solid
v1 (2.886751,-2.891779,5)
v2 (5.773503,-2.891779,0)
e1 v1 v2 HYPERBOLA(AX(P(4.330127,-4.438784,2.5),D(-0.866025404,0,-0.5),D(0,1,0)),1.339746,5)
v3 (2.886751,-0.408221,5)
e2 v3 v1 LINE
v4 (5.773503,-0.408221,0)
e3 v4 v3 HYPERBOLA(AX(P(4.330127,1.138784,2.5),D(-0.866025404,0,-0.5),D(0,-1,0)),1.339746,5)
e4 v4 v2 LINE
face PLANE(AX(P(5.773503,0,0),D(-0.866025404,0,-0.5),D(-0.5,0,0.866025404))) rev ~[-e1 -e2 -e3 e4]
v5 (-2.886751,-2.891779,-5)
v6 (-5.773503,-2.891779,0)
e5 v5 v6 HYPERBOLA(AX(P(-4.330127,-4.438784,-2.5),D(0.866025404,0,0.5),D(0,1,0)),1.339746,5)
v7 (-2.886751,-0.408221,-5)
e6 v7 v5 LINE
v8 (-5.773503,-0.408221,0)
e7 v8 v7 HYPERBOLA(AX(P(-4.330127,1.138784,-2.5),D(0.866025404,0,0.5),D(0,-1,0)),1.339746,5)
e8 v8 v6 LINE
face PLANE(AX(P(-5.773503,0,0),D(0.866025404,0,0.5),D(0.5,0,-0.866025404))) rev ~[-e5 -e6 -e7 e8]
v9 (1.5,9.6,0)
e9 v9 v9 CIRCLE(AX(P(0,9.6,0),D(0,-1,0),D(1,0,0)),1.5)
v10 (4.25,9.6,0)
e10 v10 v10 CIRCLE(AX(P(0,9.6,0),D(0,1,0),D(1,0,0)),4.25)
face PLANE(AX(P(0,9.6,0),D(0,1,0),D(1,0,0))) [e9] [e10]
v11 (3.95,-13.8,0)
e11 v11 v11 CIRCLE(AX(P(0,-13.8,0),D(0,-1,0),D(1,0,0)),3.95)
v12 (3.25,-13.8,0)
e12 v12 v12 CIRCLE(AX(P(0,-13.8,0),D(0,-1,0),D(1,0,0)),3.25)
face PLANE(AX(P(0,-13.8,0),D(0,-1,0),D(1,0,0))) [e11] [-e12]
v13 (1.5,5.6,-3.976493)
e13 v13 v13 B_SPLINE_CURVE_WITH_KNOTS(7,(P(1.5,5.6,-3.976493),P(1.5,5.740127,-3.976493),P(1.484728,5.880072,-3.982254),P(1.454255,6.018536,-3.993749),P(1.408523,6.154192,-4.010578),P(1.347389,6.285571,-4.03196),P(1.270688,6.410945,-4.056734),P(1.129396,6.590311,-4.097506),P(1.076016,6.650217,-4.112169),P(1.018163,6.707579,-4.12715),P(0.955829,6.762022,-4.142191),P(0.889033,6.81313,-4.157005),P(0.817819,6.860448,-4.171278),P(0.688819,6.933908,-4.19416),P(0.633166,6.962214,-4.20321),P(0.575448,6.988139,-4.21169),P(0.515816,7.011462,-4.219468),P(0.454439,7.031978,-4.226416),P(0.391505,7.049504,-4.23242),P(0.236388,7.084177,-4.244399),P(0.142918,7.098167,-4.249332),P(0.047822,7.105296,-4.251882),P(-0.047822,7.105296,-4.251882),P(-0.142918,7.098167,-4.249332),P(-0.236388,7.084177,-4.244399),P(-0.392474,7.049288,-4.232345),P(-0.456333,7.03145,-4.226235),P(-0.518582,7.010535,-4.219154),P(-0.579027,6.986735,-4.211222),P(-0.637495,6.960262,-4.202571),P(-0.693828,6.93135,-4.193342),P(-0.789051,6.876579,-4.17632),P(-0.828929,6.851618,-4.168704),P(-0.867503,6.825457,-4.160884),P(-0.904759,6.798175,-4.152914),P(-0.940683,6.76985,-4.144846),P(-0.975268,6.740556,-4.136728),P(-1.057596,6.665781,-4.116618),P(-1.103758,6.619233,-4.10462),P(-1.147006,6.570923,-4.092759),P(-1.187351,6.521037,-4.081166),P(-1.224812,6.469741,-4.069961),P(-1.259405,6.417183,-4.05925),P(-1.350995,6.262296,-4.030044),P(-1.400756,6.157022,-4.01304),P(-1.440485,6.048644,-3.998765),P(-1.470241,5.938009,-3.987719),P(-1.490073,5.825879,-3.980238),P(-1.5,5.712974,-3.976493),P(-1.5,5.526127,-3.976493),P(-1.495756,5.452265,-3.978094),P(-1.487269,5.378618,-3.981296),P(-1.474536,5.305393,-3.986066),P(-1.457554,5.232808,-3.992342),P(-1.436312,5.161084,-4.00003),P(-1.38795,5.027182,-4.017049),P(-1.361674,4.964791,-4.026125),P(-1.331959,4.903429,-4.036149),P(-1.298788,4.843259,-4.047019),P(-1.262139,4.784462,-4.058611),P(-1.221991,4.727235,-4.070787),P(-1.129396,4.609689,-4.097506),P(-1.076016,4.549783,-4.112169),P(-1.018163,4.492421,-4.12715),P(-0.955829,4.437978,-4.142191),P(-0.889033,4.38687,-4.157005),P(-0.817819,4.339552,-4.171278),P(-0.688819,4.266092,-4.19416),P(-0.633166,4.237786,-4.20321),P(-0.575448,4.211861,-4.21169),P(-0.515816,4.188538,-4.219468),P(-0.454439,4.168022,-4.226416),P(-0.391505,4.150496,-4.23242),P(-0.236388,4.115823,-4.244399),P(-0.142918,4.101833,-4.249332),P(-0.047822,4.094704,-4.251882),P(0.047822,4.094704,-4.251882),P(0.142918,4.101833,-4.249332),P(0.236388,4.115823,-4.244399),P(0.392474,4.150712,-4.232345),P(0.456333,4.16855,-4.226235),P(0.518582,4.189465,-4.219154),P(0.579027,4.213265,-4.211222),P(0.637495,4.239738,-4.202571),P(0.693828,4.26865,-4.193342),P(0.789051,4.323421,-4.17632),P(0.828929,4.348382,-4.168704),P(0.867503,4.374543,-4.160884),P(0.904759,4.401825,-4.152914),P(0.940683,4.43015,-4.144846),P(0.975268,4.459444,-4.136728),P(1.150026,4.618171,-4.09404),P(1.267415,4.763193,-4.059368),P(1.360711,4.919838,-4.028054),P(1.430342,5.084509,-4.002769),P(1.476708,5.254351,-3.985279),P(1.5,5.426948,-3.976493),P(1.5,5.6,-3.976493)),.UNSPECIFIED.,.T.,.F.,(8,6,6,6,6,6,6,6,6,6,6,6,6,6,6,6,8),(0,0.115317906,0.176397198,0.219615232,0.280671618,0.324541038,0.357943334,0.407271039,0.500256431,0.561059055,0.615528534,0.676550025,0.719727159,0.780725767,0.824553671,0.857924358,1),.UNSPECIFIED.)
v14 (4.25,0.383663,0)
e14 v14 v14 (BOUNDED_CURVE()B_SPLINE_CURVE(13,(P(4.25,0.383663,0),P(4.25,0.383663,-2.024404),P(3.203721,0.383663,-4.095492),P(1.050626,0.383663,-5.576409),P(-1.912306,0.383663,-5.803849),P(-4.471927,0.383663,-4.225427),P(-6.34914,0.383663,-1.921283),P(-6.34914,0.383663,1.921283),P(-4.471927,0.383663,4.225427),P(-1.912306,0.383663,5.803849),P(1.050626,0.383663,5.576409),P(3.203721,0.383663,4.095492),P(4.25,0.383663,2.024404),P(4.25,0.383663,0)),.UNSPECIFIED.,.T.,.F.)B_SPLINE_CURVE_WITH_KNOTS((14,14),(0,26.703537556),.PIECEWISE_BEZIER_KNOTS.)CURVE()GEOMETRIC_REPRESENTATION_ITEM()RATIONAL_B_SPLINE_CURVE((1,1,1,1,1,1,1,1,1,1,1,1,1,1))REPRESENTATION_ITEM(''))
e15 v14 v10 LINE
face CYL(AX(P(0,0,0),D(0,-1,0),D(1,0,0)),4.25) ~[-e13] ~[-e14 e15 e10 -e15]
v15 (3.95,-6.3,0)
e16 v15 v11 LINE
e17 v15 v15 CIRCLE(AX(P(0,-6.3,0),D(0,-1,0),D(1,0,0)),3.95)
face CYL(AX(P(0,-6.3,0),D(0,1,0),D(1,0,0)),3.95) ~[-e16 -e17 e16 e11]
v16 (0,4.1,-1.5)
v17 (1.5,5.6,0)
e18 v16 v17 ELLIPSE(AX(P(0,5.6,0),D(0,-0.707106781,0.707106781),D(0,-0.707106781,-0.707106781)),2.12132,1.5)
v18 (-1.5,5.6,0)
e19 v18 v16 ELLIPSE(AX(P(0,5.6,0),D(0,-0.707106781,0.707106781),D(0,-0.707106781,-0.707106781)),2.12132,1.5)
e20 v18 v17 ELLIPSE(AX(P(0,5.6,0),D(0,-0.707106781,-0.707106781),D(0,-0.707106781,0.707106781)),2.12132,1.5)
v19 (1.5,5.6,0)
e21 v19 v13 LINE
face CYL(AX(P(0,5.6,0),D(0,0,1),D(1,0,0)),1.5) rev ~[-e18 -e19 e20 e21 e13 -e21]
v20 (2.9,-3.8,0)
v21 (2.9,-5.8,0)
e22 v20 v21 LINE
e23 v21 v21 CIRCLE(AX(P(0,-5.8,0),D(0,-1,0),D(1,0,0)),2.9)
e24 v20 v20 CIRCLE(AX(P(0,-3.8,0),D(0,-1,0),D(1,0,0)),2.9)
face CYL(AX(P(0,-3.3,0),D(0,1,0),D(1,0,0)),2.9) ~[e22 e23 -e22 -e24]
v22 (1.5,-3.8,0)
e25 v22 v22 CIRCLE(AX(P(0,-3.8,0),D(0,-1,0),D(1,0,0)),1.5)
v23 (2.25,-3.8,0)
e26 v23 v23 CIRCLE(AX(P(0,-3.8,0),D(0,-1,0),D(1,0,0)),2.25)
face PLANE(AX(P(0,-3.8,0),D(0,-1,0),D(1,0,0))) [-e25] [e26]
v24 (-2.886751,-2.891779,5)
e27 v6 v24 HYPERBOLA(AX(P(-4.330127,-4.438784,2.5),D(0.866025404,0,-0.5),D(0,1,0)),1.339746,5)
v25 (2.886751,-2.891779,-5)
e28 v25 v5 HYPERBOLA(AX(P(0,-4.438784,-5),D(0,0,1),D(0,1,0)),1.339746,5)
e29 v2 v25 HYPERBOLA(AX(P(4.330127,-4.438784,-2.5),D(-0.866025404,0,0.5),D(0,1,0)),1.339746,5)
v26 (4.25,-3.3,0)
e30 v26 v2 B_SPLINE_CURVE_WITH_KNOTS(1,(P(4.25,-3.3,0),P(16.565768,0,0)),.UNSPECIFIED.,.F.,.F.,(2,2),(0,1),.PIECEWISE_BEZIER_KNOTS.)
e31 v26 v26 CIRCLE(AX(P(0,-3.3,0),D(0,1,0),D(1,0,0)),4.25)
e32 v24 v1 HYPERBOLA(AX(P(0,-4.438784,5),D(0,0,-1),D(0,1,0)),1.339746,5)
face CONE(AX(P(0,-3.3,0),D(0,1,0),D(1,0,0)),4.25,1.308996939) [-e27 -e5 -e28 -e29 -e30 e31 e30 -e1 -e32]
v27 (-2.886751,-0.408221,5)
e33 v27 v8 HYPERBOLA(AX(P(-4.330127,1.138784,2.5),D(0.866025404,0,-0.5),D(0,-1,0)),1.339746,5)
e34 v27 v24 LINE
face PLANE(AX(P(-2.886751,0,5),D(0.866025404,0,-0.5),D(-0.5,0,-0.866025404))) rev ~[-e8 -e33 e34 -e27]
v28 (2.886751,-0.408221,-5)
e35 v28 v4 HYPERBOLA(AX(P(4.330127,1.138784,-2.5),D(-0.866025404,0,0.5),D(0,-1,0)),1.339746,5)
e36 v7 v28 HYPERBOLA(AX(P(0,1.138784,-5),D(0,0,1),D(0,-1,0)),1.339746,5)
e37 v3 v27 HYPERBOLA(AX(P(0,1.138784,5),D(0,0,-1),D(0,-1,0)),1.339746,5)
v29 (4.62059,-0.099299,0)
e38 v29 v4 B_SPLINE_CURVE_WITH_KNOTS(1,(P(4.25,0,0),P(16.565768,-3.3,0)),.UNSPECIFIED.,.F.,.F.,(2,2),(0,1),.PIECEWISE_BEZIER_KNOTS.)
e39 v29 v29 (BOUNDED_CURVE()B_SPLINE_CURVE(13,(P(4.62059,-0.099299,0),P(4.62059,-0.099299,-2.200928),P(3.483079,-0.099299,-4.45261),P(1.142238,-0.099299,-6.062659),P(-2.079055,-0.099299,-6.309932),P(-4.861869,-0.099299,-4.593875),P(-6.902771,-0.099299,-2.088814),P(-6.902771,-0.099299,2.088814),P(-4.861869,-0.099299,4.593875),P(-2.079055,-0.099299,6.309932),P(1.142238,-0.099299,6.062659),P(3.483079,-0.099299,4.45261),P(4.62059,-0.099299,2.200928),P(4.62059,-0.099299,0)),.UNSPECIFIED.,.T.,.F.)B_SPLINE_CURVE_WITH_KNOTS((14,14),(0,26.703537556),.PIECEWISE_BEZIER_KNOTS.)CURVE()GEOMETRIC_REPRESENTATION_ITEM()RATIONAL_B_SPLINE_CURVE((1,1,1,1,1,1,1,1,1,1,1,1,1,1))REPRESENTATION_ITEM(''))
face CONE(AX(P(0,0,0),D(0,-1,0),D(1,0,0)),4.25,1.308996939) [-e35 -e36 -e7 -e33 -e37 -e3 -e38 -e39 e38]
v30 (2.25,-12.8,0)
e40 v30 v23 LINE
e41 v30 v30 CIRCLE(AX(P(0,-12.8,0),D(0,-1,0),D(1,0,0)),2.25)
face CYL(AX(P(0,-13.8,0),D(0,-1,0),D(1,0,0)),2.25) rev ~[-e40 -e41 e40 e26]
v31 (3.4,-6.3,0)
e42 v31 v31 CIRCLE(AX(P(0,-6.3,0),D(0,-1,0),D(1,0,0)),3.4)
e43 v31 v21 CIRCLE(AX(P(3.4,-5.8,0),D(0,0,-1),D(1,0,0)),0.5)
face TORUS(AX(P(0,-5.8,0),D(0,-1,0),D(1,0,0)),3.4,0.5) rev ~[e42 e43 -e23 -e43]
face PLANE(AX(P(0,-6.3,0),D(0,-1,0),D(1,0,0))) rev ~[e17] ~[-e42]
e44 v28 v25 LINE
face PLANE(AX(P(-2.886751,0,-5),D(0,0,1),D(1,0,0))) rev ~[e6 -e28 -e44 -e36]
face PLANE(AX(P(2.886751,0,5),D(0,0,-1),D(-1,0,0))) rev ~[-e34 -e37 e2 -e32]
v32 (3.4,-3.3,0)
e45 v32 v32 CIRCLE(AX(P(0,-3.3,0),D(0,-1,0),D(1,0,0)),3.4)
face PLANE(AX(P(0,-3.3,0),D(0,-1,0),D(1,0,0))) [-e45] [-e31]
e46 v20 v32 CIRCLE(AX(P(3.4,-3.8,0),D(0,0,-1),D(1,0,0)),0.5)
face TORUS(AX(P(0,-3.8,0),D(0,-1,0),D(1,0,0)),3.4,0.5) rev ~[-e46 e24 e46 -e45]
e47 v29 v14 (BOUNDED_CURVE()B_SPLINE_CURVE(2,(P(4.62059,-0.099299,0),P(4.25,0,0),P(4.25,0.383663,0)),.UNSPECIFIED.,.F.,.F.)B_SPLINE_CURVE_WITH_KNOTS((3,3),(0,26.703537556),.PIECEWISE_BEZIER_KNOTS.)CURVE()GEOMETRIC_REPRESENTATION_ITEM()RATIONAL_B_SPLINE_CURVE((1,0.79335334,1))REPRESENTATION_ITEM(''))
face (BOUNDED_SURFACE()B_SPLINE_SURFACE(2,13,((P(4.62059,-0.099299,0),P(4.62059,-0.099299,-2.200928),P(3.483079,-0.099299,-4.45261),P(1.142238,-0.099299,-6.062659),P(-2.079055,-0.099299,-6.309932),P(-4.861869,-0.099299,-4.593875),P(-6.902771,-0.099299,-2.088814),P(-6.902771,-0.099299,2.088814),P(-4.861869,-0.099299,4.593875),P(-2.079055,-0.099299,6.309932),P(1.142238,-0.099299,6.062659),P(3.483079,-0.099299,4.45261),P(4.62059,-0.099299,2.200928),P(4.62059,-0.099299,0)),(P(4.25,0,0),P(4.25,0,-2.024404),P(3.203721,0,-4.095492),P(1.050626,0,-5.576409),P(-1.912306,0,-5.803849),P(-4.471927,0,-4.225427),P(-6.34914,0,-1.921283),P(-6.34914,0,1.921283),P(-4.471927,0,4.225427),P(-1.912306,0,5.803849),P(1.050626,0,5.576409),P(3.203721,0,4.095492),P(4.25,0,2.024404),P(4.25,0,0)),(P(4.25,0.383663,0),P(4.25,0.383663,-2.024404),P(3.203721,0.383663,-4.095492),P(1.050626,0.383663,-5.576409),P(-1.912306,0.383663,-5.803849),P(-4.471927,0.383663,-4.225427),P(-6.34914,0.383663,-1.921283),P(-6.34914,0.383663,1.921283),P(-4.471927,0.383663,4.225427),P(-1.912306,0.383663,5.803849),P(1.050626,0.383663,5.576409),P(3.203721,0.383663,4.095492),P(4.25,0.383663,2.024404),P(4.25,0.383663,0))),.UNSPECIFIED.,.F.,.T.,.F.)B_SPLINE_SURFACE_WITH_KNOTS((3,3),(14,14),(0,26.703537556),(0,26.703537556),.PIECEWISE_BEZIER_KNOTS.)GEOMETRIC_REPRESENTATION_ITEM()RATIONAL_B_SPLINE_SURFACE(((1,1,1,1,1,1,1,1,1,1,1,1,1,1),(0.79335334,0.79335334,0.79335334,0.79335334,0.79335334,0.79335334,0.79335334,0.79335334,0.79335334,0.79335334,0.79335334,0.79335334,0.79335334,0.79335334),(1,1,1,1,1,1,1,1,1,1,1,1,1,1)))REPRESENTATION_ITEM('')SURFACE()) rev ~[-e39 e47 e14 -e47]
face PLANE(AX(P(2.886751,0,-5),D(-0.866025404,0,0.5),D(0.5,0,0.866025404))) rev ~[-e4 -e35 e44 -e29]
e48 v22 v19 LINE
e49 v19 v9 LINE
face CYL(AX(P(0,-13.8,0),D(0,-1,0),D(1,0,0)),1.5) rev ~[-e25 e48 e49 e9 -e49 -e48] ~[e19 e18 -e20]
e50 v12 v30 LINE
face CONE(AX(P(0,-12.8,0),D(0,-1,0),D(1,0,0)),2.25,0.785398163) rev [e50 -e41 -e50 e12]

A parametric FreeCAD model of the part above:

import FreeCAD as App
import Part
import Sketcher

V = App.Vector
Q = App.Units.Quantity


def edges_at(feature, points):
    """Names of the edges that pass closest to the given points."""
    edges = feature.Shape.Edges
    near = lambda p: min(range(len(edges)), key=lambda i: edges[i].distToShape(Part.Vertex(*p))[0])
    return sorted({f"Edge{near(p) + 1}" for p in points})


def add_polygon(sketch, points):
    """Adds a closed chain of lines whose ends are joined by coincident constraints."""
    first, n = sketch.GeometryCount, len(points)
    for a, b in zip(points, points[1:] + points[:1]):
        sketch.addGeometry(Part.LineSegment(App.Vector(*a, 0), App.Vector(*b, 0)), False)
    for i in range(n):
        sketch.addConstraint(Sketcher.Constraint("Coincident", first + i, 2, first + (i + 1) % n, 1))

doc = App.newDocument("Part")
body = doc.addObject("PartDesign::Body", "Body")

# Sketch on XZ plane
sketch1 = body.newObject("Sketcher::SketchObject", "Sketch")
sketch1.AttachmentSupport = (doc.getObject("XZ_Plane"), [""])
sketch1.MapMode = "FlatFace"
sketch1.addGeometry(Part.Circle(V(0, 0, 0), V(0, 0, 1), 4.2), False)
sketch1.addConstraint(Sketcher.Constraint("Coincident", 0, 3, -1, 1))
sketch1.addConstraint(Sketcher.Constraint("Diameter", 0, 8.5))
pad1 = body.newObject("PartDesign::Pad", "Pad")
pad1.Profile = sketch1
pad1.Length = 9.6
pad1.Reversed = True

# Sketch on XZ plane
sketch2 = body.newObject("Sketcher::SketchObject", "Sketch001")
sketch2.AttachmentSupport = (doc.getObject("XZ_Plane"), [""])
sketch2.MapMode = "FlatFace"
add_polygon(sketch2, [(-3, 5), (-6, 0), (-3, -5), (3, -5), (6, 0), (3, 5)])  # lines 0-5
sketch2.addConstraint(Sketcher.Constraint("Horizontal", 2))
sketch2.addConstraint(Sketcher.Constraint("Horizontal", 5))
sketch2.addConstraint(Sketcher.Constraint("Symmetric", 0, 2, 3, 2, -1, 1))
sketch2.addConstraint(Sketcher.Constraint("Symmetric", 1, 2, 4, 2, -1, 1))
sketch2.addConstraint(Sketcher.Constraint("PointOnObject", 0, 2, -1))
sketch2.addConstraint(Sketcher.Constraint("Parallel", 0, 3))
sketch2.addConstraint(Sketcher.Constraint("Vertical", 2, 2, 4, 2))
sketch2.addConstraint(Sketcher.Constraint("Angle", 0, Q("-120 deg")))
sketch2.addConstraint(Sketcher.Constraint("DistanceY", 1, 2, -1, 1, 5.0))
sketch2.addConstraint(Sketcher.Constraint("DistanceX", 2, 1, 2, 2, 5.773503))
pad2 = body.newObject("PartDesign::Pad", "Pad001")
pad2.Profile = sketch2
pad2.Length = 3.3

# Sketch on XZ plane
sketch3 = body.newObject("Sketcher::SketchObject", "Sketch002")
sketch3.AttachmentSupport = (doc.getObject("XZ_Plane"), [""])
sketch3.MapMode = "FlatFace"
sketch3.AttachmentOffset = App.Placement(V(0, 0, 3.3), App.Rotation())
add_polygon(sketch3, [(-21.1, 20.3), (-21.1, -20.3), (21.1, -20.3), (21.1, 20.3)])  # lines 0-3
sketch3.addGeometry(Part.Circle(V(0, 0, 0), V(0, 0, 1), 4.2), False)  # 4
sketch3.addConstraint(Sketcher.Constraint("Vertical", 0))
sketch3.addConstraint(Sketcher.Constraint("Horizontal", 1))
sketch3.addConstraint(Sketcher.Constraint("Vertical", 2))
sketch3.addConstraint(Sketcher.Constraint("Horizontal", 3))
sketch3.addConstraint(Sketcher.Constraint("Coincident", 4, 3, -1, 1))
sketch3.addConstraint(Sketcher.Constraint("Symmetric", 0, 2, 2, 2, -1, 1))
sketch3.addConstraint(Sketcher.Constraint("Diameter", 4, 8.5))
sketch3.addConstraint(Sketcher.Constraint("DistanceY", 0, 2, 0, 1, 40.63))
sketch3.addConstraint(Sketcher.Constraint("DistanceX", 1, 1, 1, 2, 42.178))
pocket1 = body.newObject("PartDesign::Pocket", "Pocket")
pocket1.Profile = sketch3
pocket1.Length = 3.3
pocket1.TaperAngle = 75

# Sketch on XZ plane
sketch4 = body.newObject("Sketcher::SketchObject", "Sketch003")
sketch4.AttachmentSupport = (doc.getObject("XZ_Plane"), [""])
sketch4.MapMode = "FlatFace"
add_polygon(sketch4, [(-21.1, -20.3), (-21.1, 20.3), (21.1, 20.3), (21.1, -20.3)])  # lines 0-3
sketch4.addGeometry(Part.Circle(V(0, 0, 0), V(0, 0, 1), 4.2), False)  # 4
sketch4.addConstraint(Sketcher.Constraint("Vertical", 0))
sketch4.addConstraint(Sketcher.Constraint("Horizontal", 1))
sketch4.addConstraint(Sketcher.Constraint("Vertical", 2))
sketch4.addConstraint(Sketcher.Constraint("Horizontal", 3))
sketch4.addConstraint(Sketcher.Constraint("Coincident", 4, 3, -1, 1))
sketch4.addConstraint(Sketcher.Constraint("Symmetric", 0, 2, 2, 2, -1, 1))
sketch4.addConstraint(Sketcher.Constraint("Diameter", 4, 8.5))
sketch4.addConstraint(Sketcher.Constraint("DistanceY", 0, 1, 0, 2, 40.63))
sketch4.addConstraint(Sketcher.Constraint("DistanceX", 1, 1, 1, 2, 42.178))
pocket2 = body.newObject("PartDesign::Pocket", "Pocket001")
pocket2.Profile = sketch4
pocket2.Length = 3.3
pocket2.Reversed = True
pocket2.TaperAngle = 75

# Sketch on XZ plane
sketch5 = body.newObject("Sketcher::SketchObject", "Sketch004")
sketch5.AttachmentSupport = (doc.getObject("XZ_Plane"), [""])
sketch5.MapMode = "FlatFace"
sketch5.AttachmentOffset = App.Placement(V(0, 0, 3.3), App.Rotation())
sketch5.addGeometry(Part.Circle(V(0, 0, 0), V(0, 0, 1), 2.9), False)
sketch5.addConstraint(Sketcher.Constraint("Coincident", 0, 3, -1, 1))
sketch5.addConstraint(Sketcher.Constraint("Diameter", 0, 5.8))
pad3 = body.newObject("PartDesign::Pad", "Pad002")
pad3.Profile = sketch5
pad3.Length = 3

# Sketch on XZ plane
sketch6 = body.newObject("Sketcher::SketchObject", "Sketch005")
sketch6.AttachmentSupport = (doc.getObject("XZ_Plane"), [""])
sketch6.MapMode = "FlatFace"
sketch6.AttachmentOffset = App.Placement(V(0, 0, 6.3), App.Rotation())
sketch6.addGeometry(Part.Circle(V(0, 0, 0), V(0, 0, 1), 4), False)
sketch6.addConstraint(Sketcher.Constraint("Coincident", 0, 3, -1, 1))
sketch6.addConstraint(Sketcher.Constraint("Diameter", 0, 7.9))
pad4 = body.newObject("PartDesign::Pad", "Pad003")
pad4.Profile = sketch6
pad4.Length = 7.5

# Sketch on XZ plane
sketch7 = body.newObject("Sketcher::SketchObject", "Sketch006")
sketch7.AttachmentSupport = (doc.getObject("XZ_Plane"), [""])
sketch7.MapMode = "FlatFace"
sketch7.AttachmentOffset = App.Placement(V(0, 0, 13.8), App.Rotation())
sketch7.addGeometry(Part.Circle(V(0, 0, 0), V(0, 0, 1), 1.5), False)
sketch7.addConstraint(Sketcher.Constraint("Coincident", 0, 3, -1, 1))
sketch7.addConstraint(Sketcher.Constraint("Diameter", 0, 3.0))
pocket3 = body.newObject("PartDesign::Pocket", "Pocket002")
pocket3.Profile = sketch7
pocket3.Type = "ThroughAll"

# Sketch on XZ plane
sketch8 = body.newObject("Sketcher::SketchObject", "Sketch007")
sketch8.AttachmentSupport = (doc.getObject("XZ_Plane"), [""])
sketch8.MapMode = "FlatFace"
sketch8.AttachmentOffset = App.Placement(V(0, 0, 13.8), App.Rotation())
sketch8.addGeometry(Part.Circle(V(0, 0, 0), V(0, 0, 1), 2.2), False)
sketch8.addConstraint(Sketcher.Constraint("Coincident", 0, 3, -1, 1))
sketch8.addConstraint(Sketcher.Constraint("Diameter", 0, 4.5))
pocket4 = body.newObject("PartDesign::Pocket", "Pocket003")
pocket4.Profile = sketch8
pocket4.Length = 10
doc.recompute()

fillet = body.newObject("PartDesign::Fillet", "Fillet")
fillet.Base = (pocket4, edges_at(pocket4, [(-4.25, 0, 0), (-2.9, -3.3, 0), (-2.9, -6.3, 0)]))
fillet.Radius = 0.5

# Sketch on XY plane
sketch9 = body.newObject("Sketcher::SketchObject", "Sketch008")
sketch9.AttachmentSupport = (doc.getObject("XY_Plane"), [""])
sketch9.MapMode = "FlatFace"
sketch9.addGeometry(Part.Circle(V(0, 5.6, 0), V(0, 0, 1), 1.5), False)
sketch9.addConstraint(Sketcher.Constraint("PointOnObject", 0, 3, -2))
sketch9.addConstraint(Sketcher.Constraint("Diameter", 0, 3.0))
sketch9.addConstraint(Sketcher.Constraint("DistanceY", -1, 1, 0, 3, 5.6))
pocket5 = body.newObject("PartDesign::Pocket", "Pocket004")
pocket5.Profile = sketch9
pocket5.Type = "ThroughAll"
doc.recompute()

chamfer = body.newObject("PartDesign::Chamfer", "Chamfer")
chamfer.Base = (pocket5, edges_at(pocket5, [(-2.25, -13.8, 0)]))
chamfer.Size = 1

doc.recompute()
